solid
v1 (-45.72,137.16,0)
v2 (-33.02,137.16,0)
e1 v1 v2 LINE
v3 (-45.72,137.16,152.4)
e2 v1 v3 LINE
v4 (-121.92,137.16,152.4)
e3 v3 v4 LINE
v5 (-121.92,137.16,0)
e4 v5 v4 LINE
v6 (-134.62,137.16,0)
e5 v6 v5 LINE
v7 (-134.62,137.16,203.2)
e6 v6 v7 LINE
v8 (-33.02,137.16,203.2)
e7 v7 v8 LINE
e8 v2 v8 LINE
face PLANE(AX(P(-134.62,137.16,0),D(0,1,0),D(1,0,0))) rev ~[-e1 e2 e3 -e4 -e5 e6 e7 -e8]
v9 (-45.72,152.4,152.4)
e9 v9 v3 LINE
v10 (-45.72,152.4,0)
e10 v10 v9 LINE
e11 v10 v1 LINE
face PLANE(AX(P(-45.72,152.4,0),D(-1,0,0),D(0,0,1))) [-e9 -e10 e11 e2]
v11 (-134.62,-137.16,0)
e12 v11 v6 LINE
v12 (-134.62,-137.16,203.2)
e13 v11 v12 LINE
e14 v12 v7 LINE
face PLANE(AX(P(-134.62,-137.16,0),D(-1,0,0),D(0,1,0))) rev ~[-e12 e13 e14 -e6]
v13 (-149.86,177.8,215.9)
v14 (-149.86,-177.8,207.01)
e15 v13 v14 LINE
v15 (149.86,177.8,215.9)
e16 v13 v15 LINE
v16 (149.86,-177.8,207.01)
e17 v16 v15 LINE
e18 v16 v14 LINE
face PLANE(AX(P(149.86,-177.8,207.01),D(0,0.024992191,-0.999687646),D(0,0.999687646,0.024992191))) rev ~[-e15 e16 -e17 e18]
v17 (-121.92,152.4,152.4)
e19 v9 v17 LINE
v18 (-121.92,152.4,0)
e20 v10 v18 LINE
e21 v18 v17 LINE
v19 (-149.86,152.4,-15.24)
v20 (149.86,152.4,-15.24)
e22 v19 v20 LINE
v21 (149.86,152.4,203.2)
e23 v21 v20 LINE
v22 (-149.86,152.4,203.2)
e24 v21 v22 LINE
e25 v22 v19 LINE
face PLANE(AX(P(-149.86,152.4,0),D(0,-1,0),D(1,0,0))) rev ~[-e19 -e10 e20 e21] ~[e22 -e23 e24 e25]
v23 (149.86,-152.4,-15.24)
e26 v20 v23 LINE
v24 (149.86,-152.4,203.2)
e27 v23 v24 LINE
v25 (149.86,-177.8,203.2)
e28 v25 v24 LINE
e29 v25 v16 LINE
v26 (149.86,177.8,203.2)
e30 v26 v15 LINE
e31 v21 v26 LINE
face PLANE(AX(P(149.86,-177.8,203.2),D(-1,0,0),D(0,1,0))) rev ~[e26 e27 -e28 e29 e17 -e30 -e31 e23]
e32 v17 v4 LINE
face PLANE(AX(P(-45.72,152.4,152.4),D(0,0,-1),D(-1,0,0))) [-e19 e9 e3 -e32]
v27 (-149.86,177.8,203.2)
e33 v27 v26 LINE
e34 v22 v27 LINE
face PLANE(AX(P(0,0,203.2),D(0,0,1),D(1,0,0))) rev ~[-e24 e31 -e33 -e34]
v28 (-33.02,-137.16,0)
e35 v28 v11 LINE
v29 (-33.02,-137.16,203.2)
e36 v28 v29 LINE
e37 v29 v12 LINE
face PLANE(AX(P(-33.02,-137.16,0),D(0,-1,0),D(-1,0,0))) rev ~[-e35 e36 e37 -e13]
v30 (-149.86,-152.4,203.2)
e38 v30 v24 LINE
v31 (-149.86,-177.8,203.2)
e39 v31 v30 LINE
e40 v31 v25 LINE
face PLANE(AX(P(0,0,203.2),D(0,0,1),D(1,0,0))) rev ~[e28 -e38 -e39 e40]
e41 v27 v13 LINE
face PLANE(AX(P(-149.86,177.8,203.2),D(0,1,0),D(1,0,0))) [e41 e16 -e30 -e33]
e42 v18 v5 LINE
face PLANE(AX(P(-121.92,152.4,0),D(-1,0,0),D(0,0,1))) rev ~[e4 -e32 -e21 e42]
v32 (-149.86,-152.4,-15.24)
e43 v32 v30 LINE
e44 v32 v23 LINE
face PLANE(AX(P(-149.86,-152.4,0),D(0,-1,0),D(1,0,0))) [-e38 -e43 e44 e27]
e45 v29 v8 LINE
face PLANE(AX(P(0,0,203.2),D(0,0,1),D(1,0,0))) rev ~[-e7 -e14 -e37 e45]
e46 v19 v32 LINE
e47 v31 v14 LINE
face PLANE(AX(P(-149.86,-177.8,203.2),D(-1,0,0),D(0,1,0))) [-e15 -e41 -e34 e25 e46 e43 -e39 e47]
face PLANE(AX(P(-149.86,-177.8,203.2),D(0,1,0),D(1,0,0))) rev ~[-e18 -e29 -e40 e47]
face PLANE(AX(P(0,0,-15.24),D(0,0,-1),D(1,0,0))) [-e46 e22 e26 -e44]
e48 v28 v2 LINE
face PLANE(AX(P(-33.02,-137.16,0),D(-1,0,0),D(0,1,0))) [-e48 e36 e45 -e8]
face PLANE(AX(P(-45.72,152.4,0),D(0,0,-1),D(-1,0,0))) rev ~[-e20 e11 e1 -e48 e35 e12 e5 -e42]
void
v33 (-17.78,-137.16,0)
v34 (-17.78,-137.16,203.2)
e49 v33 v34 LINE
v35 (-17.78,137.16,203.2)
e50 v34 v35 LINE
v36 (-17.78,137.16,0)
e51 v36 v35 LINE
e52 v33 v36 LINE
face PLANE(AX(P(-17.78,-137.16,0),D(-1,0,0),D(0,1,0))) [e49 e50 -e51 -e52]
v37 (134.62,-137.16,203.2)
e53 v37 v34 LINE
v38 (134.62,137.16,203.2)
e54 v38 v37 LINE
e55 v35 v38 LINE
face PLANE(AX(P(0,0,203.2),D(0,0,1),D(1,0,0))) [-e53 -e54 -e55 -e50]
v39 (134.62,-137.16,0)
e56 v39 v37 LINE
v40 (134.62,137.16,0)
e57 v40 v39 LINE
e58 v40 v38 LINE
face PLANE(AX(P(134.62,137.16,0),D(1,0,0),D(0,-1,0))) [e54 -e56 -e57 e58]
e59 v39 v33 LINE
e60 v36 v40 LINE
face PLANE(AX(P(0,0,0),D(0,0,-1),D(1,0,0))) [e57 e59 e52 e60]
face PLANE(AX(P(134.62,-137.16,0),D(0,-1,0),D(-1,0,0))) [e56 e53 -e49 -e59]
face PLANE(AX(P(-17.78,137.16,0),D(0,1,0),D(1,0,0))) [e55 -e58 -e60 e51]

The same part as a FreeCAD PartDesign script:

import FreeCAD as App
import Part
import Sketcher
Q = App.Units.Quantity

doc = App.newDocument("Part")
body = doc.addObject("PartDesign::Body", "Body")

# Sketch on XY plane
sketch1 = doc.addObject("Sketcher::SketchObject", "Sketch")
body.addObject(sketch1)
sketch1.AttachmentSupport = (doc.XY_Plane, [""])
sketch1.MapMode = "FlatFace"
sketch1.addGeometry([
    Part.LineSegment(App.Vector(-150, 152, 0), App.Vector(-150, -152, 0)),  # 0
    Part.LineSegment(App.Vector(-150, -152, 0), App.Vector(150, -152, 0)),  # 1
    Part.LineSegment(App.Vector(150, -152, 0), App.Vector(150, 152, 0)),  # 2
    Part.LineSegment(App.Vector(150, 152, 0), App.Vector(-150, 152, 0)),  # 3
    Part.LineSegment(App.Vector(-18, -137, 0), App.Vector(-18, 137, 0)),  # 4
    Part.LineSegment(App.Vector(-18, 137, 0), App.Vector(135, 137, 0)),  # 5
    Part.LineSegment(App.Vector(135, 137, 0), App.Vector(135, -137, 0)),  # 6
    Part.LineSegment(App.Vector(135, -137, 0), App.Vector(-18, -137, 0)),  # 7
    Part.LineSegment(App.Vector(-33, -137, 0), App.Vector(-135, -137, 0)),  # 8
    Part.LineSegment(App.Vector(-135, -137, 0), App.Vector(-135, 137, 0)),  # 9
    Part.LineSegment(App.Vector(-135, 137, 0), App.Vector(-33, 137, 0)),  # 10
    Part.LineSegment(App.Vector(-33, 137, 0), App.Vector(-33, -137, 0)),  # 11
], False)
sketch1.addConstraint([
    Sketcher.Constraint("Coincident", 0, 2, 1, 1),
    Sketcher.Constraint("Coincident", 1, 2, 2, 1),
    Sketcher.Constraint("Coincident", 2, 2, 3, 1),
    Sketcher.Constraint("Coincident", 3, 2, 0, 1),
    Sketcher.Constraint("Coincident", 4, 2, 5, 1),
    Sketcher.Constraint("Coincident", 5, 2, 6, 1),
    Sketcher.Constraint("Coincident", 6, 2, 7, 1),
    Sketcher.Constraint("Coincident", 7, 2, 4, 1),
    Sketcher.Constraint("Coincident", 8, 2, 9, 1),
    Sketcher.Constraint("Coincident", 9, 2, 10, 1),
    Sketcher.Constraint("Coincident", 10, 2, 11, 1),
    Sketcher.Constraint("Coincident", 11, 2, 8, 1),
    Sketcher.Constraint("Vertical", 0),
    Sketcher.Constraint("Horizontal", 1),
    Sketcher.Constraint("Vertical", 2),
    Sketcher.Constraint("Horizontal", 3),
    Sketcher.Constraint("Vertical", 4),
    Sketcher.Constraint("Horizontal", 5),
    Sketcher.Constraint("Vertical", 6),
    Sketcher.Constraint("Horizontal", 7),
    Sketcher.Constraint("Horizontal", 8),
    Sketcher.Constraint("Vertical", 9),
    Sketcher.Constraint("Horizontal", 10),
    Sketcher.Constraint("Vertical", 11),
    Sketcher.Constraint("Symmetric", 0, 2, 2, 2, -1, 1),
    Sketcher.Constraint("Symmetric", 5, 2, 8, 2, -1, 1),
    Sketcher.Constraint("Horizontal", 7, 2, 8, 2),
    Sketcher.Constraint("Horizontal", 5, 2, 9, 2),
    Sketcher.Constraint("DistanceX", 5, 1, 5, 2, Q("6 in")),
    Sketcher.Constraint("DistanceX", 8, 2, 8, 1, Q("4 in")),
    Sketcher.Constraint("DistanceY", 0, 2, 0, 1, Q("12 in")),
    Sketcher.Constraint("DistanceX", 1, 1, 1, 2, Q("11.8 in")),
    Sketcher.Constraint("DistanceY", 4, 1, 4, 2, Q("10.8 in")),
    Sketcher.Constraint("DistanceX", 4, 2, -1, 1, Q("0.7 in")),
])
pad1 = doc.addObject("PartDesign::Pad", "Pad")
body.addObject(pad1)
pad1.Profile = sketch1
pad1.Length = Q("8 in")

# Sketch on XY plane
sketch2 = doc.addObject("Sketcher::SketchObject", "Sketch001")
body.addObject(sketch2)
sketch2.AttachmentSupport = (doc.XY_Plane, [""])
sketch2.MapMode = "FlatFace"
sketch2.addGeometry([
    Part.LineSegment(App.Vector(-150, -152, 0), App.Vector(-150, 152, 0)),
    Part.LineSegment(App.Vector(-150, 152, 0), App.Vector(150, 152, 0)),
    Part.LineSegment(App.Vector(150, 152, 0), App.Vector(150, -152, 0)),
    Part.LineSegment(App.Vector(150, -152, 0), App.Vector(-150, -152, 0)),
], False)
sketch2.addConstraint([
    Sketcher.Constraint("Coincident", 0, 2, 1, 1),
    Sketcher.Constraint("Coincident", 1, 2, 2, 1),
    Sketcher.Constraint("Coincident", 2, 2, 3, 1),
    Sketcher.Constraint("Coincident", 3, 2, 0, 1),
    Sketcher.Constraint("Vertical", 0),
    Sketcher.Constraint("Horizontal", 1),
    Sketcher.Constraint("Vertical", 2),
    Sketcher.Constraint("Horizontal", 3),
    Sketcher.Constraint("Symmetric", 0, 2, 2, 2, -1, 1),
    Sketcher.Constraint("DistanceY", 0, 1, 0, 2, Q("12 in")),
    Sketcher.Constraint("DistanceX", 1, 1, 1, 2, Q("11.8 in")),
])
pad2 = doc.addObject("PartDesign::Pad", "Pad001")
body.addObject(pad2)
pad2.Profile = sketch2
pad2.Length = Q("0.6 in")
pad2.Reversed = True

# Sketch on XY plane
sketch3 = doc.addObject("Sketcher::SketchObject", "Sketch002")
body.addObject(sketch3)
sketch3.AttachmentSupport = (doc.XY_Plane, [""])
sketch3.MapMode = "FlatFace"
sketch3.AttachmentOffset = App.Placement(App.Vector(0, 0, 8 * 25.4), App.Rotation())
sketch3.addGeometry([
    Part.LineSegment(App.Vector(-150, 178, 0), App.Vector(-150, -178, 0)),
    Part.LineSegment(App.Vector(-150, -178, 0), App.Vector(150, -178, 0)),
    Part.LineSegment(App.Vector(150, -178, 0), App.Vector(150, 178, 0)),
    Part.LineSegment(App.Vector(150, 178, 0), App.Vector(-150, 178, 0)),
], False)
sketch3.addConstraint([
    Sketcher.Constraint("Coincident", 0, 2, 1, 1),
    Sketcher.Constraint("Coincident", 1, 2, 2, 1),
    Sketcher.Constraint("Coincident", 2, 2, 3, 1),
    Sketcher.Constraint("Coincident", 3, 2, 0, 1),
    Sketcher.Constraint("Vertical", 0),
    Sketcher.Constraint("Horizontal", 1),
    Sketcher.Constraint("Vertical", 2),
    Sketcher.Constraint("Horizontal", 3),
    Sketcher.Constraint("Symmetric", 0, 2, 2, 2, -1, 1),
    Sketcher.Constraint("DistanceY", 0, 2, 0, 1, Q("14 in")),
    Sketcher.Constraint("DistanceX", 1, 1, 1, 2, Q("11.8 in")),
])
pad3 = doc.addObject("PartDesign::Pad", "Pad002")
body.addObject(pad3)
pad3.Profile = sketch3
pad3.Length = Q("0.5 in")

# Sketch on XZ plane
sketch4 = doc.addObject("Sketcher::SketchObject", "Sketch003")
body.addObject(sketch4)
sketch4.AttachmentSupport = (doc.XZ_Plane, [""])
sketch4.MapMode = "FlatFace"
sketch4.AttachmentOffset = App.Placement(App.Vector(0, 0, -6 * 25.4), App.Rotation())
sketch4.addGeometry([
    Part.LineSegment(App.Vector(-46, 152, 0), App.Vector(-46, 0, 0)),
    Part.LineSegment(App.Vector(-46, 0, 0), App.Vector(-122, 0, 0)),
    Part.LineSegment(App.Vector(-122, 0, 0), App.Vector(-122, 152, 0)),
    Part.LineSegment(App.Vector(-122, 152, 0), App.Vector(-46, 152, 0)),
], False)
sketch4.addConstraint([
    Sketcher.Constraint("Coincident", 0, 2, 1, 1),
    Sketcher.Constraint("Coincident", 1, 2, 2, 1),
    Sketcher.Constraint("Coincident", 2, 2, 3, 1),
    Sketcher.Constraint("Coincident", 3, 2, 0, 1),
    Sketcher.Constraint("Vertical", 0),
    Sketcher.Constraint("Horizontal", 1),
    Sketcher.Constraint("Vertical", 2),
    Sketcher.Constraint("Horizontal", 3),
    Sketcher.Constraint("PointOnObject", 0, 2, -1),
    Sketcher.Constraint("DistanceX", 1, 2, 1, 1, Q("3 in")),
    Sketcher.Constraint("DistanceY", 0, 2, 0, 1, Q("6 in")),
    Sketcher.Constraint("DistanceX", 0, 2, -1, 1, Q("1.8 in")),
])
pocket1 = doc.addObject("PartDesign::Pocket", "Pocket")
body.addObject(pocket1)
pocket1.Profile = sketch4
pocket1.Length = Q("1 in")
pocket1.Reversed = True

# Sketch on YZ plane
sketch5 = doc.addObject("Sketcher::SketchObject", "Sketch004")
body.addObject(sketch5)
sketch5.AttachmentSupport = (doc.YZ_Plane, [""])
sketch5.MapMode = "FlatFace"
sketch5.AttachmentOffset = App.Placement(App.Vector(0, 0, 5.9 * 25.4), App.Rotation())
sketch5.addGeometry([
    Part.LineSegment(App.Vector(-178, 207, 0), App.Vector(178, 216, 0)),
    Part.LineSegment(App.Vector(178, 216, 0), App.Vector(-178, 216, 0)),
    Part.LineSegment(App.Vector(-178, 216, 0), App.Vector(-178, 207, 0)),
], False)
sketch5.addConstraint([
    Sketcher.Constraint("Coincident", 0, 2, 1, 1),
    Sketcher.Constraint("Coincident", 1, 2, 2, 1),
    Sketcher.Constraint("Coincident", 2, 2, 0, 1),
    Sketcher.Constraint("Horizontal", 1),
    Sketcher.Constraint("Vertical", 2),
    Sketcher.Constraint("DistanceX", 1, 2, 1, 1, Q("14 in")),
    Sketcher.Constraint("DistanceX", -1, 1, 0, 2, Q("7 in")),
    Sketcher.Constraint("DistanceY", 2, 2, 2, 1, Q("0.35 in")),
    Sketcher.Constraint("DistanceY", -1, 1, 0, 2, Q("8.5 in")),
])
pocket2 = doc.addObject("PartDesign::Pocket", "Pocket001")
body.addObject(pocket2)
pocket2.Profile = sketch5
pocket2.Length = Q("14.69 in")

doc.recompute()
